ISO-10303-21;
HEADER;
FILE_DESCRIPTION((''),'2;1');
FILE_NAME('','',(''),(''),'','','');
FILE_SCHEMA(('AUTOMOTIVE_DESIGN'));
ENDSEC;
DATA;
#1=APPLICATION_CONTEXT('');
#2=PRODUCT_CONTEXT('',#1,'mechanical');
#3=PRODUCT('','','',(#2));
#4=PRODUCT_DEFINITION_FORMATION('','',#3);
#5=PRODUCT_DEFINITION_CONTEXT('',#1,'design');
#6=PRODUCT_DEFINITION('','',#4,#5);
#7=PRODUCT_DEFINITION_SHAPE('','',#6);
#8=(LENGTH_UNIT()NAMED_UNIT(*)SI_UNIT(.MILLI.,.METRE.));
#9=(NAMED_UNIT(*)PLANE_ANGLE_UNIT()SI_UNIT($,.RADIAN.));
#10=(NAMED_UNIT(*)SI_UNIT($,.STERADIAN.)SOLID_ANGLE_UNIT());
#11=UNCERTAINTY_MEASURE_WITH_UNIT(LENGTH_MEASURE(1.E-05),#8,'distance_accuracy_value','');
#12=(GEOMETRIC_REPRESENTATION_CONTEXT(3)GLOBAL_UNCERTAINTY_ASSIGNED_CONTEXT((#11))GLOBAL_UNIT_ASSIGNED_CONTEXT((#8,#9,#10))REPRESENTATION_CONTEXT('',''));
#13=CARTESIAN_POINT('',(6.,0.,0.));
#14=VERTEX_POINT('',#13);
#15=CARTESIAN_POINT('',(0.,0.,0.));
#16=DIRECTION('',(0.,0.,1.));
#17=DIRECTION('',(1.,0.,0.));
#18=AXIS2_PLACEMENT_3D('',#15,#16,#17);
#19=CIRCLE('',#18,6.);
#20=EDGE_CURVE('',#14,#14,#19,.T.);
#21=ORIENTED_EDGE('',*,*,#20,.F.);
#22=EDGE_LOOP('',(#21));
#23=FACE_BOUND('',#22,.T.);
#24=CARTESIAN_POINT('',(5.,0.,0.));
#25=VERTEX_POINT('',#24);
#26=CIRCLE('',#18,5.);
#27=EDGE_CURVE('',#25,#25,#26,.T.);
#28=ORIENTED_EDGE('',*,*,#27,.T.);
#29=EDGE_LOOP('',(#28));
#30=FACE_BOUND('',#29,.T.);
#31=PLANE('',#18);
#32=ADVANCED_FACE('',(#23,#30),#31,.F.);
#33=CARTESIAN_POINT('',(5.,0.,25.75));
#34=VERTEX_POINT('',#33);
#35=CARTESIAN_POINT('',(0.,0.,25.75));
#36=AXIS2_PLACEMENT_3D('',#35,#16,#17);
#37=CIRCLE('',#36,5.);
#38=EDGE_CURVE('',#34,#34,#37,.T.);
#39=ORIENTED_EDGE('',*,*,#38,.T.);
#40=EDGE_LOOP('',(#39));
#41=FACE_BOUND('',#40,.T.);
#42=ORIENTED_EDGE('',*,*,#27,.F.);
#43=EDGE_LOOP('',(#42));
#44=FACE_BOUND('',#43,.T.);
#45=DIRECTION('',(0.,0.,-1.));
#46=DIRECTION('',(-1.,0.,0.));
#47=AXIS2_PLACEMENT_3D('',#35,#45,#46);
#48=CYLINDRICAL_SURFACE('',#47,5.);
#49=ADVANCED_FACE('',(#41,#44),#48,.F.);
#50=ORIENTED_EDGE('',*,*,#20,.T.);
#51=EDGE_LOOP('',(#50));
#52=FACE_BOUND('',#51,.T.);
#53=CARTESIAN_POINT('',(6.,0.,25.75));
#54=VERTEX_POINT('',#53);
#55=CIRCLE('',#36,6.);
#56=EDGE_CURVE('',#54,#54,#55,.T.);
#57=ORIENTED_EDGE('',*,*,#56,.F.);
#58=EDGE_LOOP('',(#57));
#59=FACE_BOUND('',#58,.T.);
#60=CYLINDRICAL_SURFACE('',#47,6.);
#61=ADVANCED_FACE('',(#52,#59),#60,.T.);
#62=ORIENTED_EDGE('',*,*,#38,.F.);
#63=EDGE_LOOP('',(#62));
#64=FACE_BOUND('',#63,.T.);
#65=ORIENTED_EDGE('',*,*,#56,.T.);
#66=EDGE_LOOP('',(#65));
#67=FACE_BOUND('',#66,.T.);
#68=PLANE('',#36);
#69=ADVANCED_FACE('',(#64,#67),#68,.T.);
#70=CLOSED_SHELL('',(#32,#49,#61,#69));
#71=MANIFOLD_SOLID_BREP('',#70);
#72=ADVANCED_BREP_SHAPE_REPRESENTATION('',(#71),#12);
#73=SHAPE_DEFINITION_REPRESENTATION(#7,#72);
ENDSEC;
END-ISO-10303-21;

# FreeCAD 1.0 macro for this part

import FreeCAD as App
import Part
import Sketcher

V = App.Vector
Q = App.Units.Quantity

doc = App.newDocument("Part")
params = doc.addObject("Spreadsheet::Sheet", "Params")
for row, (alias, value) in enumerate([
    ("sketch1_diameter", "12 mm"),
    ("sketch1_diameter2", "10 mm"),
    ("pad1_length", "25.75 mm"),
], start=1):
    params.set(f"A{row}", alias)
    params.set(f"B{row}", "=" + value)
    params.setAlias(f"B{row}", alias)

body = doc.addObject("PartDesign::Body", "Body")

# Sketch on XY plane
sketch1 = body.newObject("Sketcher::SketchObject", "Sketch")
sketch1.AttachmentSupport = (doc.getObject("XY_Plane"), [""])
sketch1.MapMode = "FlatFace"
sketch1.addGeometry([
    Part.Circle(V(0, 0, 0), V(0, 0, 1), 6),
    Part.Circle(V(0, 0, 0), V(0, 0, 1), 5),
], False)
sketch1.addConstraint([
    Sketcher.Constraint("Coincident", 0, 3, -1, 1),
    Sketcher.Constraint("Coincident", 1, 3, -1, 1),
    Sketcher.Constraint("Diameter", 0, Q("12 mm")),
    Sketcher.Constraint("Diameter", 1, Q("10 mm")),
])
sketch1.setExpression("Constraints[2]", "Params.sketch1_diameter")
sketch1.setExpression("Constraints[3]", "Params.sketch1_diameter2")
pad1 = body.newObject("PartDesign::Pad", "Pad")
pad1.Profile = sketch1
pad1.setExpression("Length", "Params.pad1_length")

doc.recompute()
